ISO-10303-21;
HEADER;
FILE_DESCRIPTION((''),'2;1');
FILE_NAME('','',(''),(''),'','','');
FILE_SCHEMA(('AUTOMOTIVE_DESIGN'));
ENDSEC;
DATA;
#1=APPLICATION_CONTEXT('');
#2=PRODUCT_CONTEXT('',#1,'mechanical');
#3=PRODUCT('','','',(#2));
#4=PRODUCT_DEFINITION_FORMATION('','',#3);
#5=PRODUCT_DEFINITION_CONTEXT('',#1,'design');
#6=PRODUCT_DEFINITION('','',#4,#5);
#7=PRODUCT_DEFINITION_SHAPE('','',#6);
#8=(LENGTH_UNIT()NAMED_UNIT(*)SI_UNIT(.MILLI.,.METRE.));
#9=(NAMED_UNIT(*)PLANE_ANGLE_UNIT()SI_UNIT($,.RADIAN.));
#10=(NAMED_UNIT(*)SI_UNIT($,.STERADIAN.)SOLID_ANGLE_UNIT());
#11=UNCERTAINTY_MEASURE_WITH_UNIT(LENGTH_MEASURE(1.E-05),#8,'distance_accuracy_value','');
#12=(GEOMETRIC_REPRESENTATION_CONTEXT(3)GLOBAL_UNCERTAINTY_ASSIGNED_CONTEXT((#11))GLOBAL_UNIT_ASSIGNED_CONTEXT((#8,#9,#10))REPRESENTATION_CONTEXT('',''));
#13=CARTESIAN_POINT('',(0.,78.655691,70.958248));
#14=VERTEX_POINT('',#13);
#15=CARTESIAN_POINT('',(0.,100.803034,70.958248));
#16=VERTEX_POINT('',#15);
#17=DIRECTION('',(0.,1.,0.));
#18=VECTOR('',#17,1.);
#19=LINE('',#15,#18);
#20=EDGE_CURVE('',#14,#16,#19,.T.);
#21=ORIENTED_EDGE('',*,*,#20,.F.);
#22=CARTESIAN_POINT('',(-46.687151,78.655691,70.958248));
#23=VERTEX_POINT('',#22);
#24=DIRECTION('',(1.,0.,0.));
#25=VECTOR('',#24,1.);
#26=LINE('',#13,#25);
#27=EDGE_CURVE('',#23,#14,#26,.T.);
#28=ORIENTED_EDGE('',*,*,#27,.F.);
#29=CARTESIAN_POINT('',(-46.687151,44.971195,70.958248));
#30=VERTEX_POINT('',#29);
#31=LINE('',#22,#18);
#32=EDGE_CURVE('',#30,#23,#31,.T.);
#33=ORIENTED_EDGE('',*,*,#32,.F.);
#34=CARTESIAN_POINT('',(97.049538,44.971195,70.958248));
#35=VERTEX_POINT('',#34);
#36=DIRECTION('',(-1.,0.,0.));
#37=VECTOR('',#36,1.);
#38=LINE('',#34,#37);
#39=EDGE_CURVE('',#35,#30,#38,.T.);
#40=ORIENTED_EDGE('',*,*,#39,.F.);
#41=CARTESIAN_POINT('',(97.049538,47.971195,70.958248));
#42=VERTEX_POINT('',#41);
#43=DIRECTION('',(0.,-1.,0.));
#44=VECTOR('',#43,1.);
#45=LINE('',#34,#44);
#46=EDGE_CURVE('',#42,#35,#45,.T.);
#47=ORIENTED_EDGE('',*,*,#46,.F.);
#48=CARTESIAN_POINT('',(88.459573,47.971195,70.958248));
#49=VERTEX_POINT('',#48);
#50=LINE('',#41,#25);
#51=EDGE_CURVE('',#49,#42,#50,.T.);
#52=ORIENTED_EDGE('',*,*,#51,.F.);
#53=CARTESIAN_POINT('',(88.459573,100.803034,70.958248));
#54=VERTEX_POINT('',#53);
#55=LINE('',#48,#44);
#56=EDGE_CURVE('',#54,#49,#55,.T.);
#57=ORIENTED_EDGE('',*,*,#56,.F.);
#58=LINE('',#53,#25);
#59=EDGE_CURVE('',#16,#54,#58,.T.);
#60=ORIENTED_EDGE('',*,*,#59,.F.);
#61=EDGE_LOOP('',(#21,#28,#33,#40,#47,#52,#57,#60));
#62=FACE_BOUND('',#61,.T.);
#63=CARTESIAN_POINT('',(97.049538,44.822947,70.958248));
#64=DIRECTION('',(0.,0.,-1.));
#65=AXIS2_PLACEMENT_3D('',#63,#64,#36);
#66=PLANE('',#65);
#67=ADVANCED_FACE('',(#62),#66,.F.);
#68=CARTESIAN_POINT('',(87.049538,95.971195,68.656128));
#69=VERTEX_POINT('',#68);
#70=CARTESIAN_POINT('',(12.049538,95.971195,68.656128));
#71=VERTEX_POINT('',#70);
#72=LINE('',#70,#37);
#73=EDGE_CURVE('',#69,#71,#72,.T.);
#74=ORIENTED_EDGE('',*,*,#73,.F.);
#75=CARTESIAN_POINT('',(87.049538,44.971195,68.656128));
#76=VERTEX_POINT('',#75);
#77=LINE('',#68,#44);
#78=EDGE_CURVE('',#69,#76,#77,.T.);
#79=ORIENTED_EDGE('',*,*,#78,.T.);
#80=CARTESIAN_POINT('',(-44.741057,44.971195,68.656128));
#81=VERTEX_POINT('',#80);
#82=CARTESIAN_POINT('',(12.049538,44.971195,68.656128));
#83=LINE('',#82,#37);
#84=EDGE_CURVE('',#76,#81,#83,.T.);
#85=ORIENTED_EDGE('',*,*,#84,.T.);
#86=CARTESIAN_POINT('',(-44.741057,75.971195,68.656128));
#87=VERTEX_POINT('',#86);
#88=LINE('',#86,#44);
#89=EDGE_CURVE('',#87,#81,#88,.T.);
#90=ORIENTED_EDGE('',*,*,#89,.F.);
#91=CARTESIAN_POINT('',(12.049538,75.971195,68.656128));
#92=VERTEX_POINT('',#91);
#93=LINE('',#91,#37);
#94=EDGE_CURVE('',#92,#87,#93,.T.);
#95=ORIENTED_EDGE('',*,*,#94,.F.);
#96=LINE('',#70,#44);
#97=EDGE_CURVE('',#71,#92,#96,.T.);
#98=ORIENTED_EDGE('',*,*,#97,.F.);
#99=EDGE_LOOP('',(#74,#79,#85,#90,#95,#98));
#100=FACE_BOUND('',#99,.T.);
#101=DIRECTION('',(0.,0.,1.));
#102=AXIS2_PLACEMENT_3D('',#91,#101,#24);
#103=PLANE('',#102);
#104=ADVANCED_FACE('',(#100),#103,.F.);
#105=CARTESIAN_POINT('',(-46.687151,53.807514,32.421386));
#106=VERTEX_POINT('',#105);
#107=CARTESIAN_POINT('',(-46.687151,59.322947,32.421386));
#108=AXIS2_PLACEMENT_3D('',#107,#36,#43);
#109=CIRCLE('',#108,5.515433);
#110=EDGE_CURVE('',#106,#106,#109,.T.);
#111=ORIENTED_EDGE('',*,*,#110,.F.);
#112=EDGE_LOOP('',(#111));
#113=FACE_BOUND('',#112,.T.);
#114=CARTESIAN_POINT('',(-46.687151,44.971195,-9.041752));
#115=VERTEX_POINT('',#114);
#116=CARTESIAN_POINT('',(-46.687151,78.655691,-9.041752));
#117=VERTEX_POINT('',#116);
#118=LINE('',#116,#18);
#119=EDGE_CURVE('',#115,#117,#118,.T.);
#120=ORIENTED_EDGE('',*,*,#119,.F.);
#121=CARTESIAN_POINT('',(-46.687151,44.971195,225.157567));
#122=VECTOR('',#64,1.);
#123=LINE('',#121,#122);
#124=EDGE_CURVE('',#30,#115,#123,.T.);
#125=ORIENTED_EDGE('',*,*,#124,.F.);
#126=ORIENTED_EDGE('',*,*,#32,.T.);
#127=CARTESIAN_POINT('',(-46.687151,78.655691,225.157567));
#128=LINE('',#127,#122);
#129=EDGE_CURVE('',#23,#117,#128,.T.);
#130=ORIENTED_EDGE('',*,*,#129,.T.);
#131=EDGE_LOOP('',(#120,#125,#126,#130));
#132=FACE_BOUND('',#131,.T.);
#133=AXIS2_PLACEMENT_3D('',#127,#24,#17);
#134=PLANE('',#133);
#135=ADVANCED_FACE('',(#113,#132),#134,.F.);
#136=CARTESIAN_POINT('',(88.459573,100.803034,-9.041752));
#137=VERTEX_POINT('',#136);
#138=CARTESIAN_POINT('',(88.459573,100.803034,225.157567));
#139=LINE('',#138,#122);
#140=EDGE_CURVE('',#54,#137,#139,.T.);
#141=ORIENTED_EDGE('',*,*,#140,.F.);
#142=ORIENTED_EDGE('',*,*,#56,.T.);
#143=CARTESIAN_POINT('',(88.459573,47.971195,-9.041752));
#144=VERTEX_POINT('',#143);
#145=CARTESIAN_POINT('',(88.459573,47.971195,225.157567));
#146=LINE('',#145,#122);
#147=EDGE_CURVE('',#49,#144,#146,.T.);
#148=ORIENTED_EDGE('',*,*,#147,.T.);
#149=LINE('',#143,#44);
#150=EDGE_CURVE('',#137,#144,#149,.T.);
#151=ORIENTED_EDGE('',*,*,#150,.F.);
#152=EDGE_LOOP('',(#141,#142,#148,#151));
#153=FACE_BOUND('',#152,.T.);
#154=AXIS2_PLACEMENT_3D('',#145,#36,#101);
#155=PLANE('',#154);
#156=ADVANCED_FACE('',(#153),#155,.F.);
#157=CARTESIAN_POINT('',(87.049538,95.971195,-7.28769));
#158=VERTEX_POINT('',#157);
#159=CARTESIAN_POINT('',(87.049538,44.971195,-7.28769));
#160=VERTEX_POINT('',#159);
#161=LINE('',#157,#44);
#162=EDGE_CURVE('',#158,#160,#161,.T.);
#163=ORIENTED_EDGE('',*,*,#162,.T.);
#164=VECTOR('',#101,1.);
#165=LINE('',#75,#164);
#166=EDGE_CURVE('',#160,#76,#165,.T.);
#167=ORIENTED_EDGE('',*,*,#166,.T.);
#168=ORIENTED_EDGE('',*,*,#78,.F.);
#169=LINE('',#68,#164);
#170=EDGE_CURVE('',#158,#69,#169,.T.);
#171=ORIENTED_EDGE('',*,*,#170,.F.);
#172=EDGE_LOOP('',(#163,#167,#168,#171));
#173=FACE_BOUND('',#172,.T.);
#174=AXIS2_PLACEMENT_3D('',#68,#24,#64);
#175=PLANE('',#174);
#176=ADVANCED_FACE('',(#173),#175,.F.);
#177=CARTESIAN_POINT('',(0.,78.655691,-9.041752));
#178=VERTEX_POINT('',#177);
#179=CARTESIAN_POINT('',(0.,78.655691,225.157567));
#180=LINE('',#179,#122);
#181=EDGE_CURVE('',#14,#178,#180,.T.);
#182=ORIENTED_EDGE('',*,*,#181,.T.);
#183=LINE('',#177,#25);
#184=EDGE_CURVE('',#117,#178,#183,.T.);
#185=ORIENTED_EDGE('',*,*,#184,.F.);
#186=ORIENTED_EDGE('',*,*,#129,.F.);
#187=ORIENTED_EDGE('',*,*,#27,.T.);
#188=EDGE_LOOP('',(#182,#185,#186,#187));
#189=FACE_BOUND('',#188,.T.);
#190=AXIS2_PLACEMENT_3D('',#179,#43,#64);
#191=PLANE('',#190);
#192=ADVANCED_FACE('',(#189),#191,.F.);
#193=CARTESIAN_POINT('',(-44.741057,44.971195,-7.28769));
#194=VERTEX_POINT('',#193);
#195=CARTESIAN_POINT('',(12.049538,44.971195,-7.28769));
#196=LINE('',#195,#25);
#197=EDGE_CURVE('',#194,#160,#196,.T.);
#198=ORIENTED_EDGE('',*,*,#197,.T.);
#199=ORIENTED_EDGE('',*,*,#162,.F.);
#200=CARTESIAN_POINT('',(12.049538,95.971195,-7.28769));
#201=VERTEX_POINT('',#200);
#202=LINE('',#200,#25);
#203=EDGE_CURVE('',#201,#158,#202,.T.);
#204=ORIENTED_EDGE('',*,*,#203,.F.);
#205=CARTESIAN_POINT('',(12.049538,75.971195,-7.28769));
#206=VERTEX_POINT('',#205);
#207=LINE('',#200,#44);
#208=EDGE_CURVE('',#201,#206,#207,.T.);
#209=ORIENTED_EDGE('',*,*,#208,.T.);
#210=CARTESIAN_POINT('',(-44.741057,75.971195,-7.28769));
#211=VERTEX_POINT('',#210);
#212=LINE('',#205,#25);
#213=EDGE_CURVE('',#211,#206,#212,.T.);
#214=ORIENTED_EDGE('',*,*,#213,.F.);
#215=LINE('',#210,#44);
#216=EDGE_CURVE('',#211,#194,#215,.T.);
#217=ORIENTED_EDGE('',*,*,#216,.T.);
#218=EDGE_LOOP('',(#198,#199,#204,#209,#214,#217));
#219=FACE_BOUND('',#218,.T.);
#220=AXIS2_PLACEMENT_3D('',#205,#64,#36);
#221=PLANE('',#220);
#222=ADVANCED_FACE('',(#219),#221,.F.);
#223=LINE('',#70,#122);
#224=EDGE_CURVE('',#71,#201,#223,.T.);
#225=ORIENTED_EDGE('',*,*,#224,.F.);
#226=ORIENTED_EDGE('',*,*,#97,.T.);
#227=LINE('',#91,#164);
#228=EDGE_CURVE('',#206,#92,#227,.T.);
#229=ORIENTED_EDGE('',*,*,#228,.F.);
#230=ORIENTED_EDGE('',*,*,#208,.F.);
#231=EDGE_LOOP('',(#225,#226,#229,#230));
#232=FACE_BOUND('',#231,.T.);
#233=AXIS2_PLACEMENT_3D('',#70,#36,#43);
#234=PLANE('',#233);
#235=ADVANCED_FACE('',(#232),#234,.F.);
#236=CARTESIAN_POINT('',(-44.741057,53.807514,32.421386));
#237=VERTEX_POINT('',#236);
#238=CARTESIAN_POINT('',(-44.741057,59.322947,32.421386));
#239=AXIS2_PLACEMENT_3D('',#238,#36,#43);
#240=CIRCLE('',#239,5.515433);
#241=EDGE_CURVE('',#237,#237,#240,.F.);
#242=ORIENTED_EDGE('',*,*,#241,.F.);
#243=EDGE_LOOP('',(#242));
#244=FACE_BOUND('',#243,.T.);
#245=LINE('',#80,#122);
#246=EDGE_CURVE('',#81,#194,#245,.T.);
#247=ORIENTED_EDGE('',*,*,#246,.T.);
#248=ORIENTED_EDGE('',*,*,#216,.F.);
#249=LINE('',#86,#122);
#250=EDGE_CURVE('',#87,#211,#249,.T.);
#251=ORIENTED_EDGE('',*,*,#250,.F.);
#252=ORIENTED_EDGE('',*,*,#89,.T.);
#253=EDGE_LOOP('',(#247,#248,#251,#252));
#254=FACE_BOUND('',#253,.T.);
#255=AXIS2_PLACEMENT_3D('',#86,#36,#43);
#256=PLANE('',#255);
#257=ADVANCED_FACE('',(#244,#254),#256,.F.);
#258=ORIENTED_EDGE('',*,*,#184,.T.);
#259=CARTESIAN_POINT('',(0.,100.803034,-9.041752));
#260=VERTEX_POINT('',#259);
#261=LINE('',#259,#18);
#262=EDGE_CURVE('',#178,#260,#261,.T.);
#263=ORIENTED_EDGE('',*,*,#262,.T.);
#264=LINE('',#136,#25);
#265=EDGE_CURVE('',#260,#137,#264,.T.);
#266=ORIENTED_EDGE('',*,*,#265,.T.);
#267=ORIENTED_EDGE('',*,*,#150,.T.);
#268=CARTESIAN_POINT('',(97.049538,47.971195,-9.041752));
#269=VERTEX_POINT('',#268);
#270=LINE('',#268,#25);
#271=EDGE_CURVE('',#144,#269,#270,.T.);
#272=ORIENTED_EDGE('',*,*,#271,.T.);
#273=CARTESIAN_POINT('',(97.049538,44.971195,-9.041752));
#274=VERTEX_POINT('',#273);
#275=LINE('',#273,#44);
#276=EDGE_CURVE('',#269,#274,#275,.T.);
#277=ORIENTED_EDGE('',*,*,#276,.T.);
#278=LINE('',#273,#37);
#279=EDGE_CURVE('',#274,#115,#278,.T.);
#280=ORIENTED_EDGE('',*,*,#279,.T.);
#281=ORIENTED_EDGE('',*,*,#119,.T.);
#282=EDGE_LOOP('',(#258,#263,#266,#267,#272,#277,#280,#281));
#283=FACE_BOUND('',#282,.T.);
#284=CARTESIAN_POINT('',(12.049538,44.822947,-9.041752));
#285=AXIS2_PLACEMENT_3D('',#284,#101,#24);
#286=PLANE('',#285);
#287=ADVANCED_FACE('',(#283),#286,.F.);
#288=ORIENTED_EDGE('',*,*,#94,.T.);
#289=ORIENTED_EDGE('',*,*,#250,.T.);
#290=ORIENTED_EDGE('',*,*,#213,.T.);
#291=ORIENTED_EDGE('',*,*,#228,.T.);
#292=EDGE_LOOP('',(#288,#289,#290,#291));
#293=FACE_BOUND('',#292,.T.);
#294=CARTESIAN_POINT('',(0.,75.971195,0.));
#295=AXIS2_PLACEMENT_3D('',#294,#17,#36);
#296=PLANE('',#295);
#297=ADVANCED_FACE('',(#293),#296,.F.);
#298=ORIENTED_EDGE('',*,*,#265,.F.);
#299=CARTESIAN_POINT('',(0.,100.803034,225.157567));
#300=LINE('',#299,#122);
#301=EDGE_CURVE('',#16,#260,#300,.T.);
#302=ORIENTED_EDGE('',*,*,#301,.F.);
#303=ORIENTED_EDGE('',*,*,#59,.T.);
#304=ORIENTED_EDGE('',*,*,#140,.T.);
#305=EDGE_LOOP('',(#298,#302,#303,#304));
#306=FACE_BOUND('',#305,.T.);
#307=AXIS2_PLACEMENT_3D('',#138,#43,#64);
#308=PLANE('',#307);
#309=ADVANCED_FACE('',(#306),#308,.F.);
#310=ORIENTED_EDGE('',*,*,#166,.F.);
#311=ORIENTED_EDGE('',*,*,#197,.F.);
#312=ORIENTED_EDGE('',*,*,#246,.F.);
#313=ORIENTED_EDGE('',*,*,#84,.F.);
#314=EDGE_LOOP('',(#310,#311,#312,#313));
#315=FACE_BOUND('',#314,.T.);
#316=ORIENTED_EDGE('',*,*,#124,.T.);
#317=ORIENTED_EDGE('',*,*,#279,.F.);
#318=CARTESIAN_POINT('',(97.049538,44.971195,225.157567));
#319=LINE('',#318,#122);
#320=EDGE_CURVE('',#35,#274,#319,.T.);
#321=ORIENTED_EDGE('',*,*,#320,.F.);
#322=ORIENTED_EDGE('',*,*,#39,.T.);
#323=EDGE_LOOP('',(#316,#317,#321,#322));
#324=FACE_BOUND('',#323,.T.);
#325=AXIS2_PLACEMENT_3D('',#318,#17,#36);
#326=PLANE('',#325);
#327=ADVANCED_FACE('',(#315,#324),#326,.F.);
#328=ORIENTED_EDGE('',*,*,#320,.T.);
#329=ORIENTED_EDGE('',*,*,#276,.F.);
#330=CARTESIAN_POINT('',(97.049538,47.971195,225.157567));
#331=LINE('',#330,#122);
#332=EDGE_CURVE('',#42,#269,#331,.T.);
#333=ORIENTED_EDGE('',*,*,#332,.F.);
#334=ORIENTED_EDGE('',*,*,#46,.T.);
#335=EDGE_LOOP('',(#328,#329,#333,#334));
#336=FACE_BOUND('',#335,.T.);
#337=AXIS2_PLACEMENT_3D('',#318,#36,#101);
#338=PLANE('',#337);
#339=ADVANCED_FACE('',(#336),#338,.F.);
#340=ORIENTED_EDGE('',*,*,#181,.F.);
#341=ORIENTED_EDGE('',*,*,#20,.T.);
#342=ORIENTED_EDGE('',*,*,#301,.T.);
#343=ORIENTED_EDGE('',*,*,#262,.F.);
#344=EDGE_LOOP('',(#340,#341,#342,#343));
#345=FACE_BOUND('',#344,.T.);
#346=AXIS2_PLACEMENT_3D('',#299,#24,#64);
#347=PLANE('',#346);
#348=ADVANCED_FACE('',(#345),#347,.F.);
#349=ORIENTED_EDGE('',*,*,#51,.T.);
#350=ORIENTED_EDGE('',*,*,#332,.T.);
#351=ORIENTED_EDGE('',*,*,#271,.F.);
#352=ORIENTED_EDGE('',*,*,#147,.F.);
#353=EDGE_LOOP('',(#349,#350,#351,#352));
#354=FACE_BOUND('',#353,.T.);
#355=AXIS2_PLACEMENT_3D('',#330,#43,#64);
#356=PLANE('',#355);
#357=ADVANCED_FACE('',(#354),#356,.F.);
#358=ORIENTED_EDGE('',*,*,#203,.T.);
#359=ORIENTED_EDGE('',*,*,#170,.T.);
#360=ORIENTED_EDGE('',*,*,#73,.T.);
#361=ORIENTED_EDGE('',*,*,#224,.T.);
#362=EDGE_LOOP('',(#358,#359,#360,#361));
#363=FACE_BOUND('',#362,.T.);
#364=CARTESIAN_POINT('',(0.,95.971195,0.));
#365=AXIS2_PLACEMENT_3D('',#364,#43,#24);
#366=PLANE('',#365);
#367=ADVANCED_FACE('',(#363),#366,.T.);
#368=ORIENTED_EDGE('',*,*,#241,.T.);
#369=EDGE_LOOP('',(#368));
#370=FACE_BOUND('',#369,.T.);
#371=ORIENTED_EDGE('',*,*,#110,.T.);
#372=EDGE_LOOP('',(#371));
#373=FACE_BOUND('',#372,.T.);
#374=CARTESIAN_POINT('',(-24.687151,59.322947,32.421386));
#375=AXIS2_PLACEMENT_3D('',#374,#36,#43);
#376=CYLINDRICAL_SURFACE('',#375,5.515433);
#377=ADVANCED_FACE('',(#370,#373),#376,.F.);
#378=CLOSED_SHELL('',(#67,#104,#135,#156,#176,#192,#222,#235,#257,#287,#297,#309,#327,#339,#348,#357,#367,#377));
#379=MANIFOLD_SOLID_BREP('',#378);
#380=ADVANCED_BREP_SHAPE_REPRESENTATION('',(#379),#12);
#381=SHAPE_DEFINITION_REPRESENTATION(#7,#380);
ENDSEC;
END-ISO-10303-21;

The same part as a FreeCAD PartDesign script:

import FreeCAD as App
import Part
import Sketcher
Q = App.Units.Quantity

doc = App.newDocument("Part")
body = doc.addObject("PartDesign::Body", "Body")

# Sketch on XY plane
sketch1 = doc.addObject("Sketcher::SketchObject", "Sketch")
body.addObject(sketch1)
sketch1.AttachmentSupport = (doc.XY_Plane, [""])
sketch1.MapMode = "FlatFace"
sketch1.addGeometry([
    Part.LineSegment(App.Vector(97, 45, 0), App.Vector(97, 48, 0)),  # 0
    Part.LineSegment(App.Vector(97, 48, 0), App.Vector(88.5, 48, 0)),  # 1
    Part.LineSegment(App.Vector(88.5, 48, 0), App.Vector(88.5, 100.8, 0)),  # 2
    Part.LineSegment(App.Vector(88.5, 100.8, 0), App.Vector(0, 100.8, 0)),  # 3
    Part.LineSegment(App.Vector(0, 100.8, 0), App.Vector(0, 78.7, 0)),  # 4
    Part.LineSegment(App.Vector(0, 78.7, 0), App.Vector(-46.7, 78.7, 0)),  # 5
    Part.LineSegment(App.Vector(-46.7, 78.7, 0), App.Vector(-46.7, 45, 0)),  # 6
    Part.LineSegment(App.Vector(-46.7, 45, 0), App.Vector(97, 45, 0)),  # 7
], False)
sketch1.addConstraint([
    Sketcher.Constraint("Coincident", 0, 2, 1, 1),
    Sketcher.Constraint("Coincident", 1, 2, 2, 1),
    Sketcher.Constraint("Coincident", 2, 2, 3, 1),
    Sketcher.Constraint("Coincident", 3, 2, 4, 1),
    Sketcher.Constraint("Coincident", 4, 2, 5, 1),
    Sketcher.Constraint("Coincident", 5, 2, 6, 1),
    Sketcher.Constraint("Coincident", 6, 2, 7, 1),
    Sketcher.Constraint("Coincident", 7, 2, 0, 1),
    Sketcher.Constraint("Vertical", 0),
    Sketcher.Constraint("Horizontal", 1),
    Sketcher.Constraint("Vertical", 2),
    Sketcher.Constraint("Horizontal", 3),
    Sketcher.Constraint("Vertical", 4),
    Sketcher.Constraint("Horizontal", 5),
    Sketcher.Constraint("Vertical", 6),
    Sketcher.Constraint("Horizontal", 7),
    Sketcher.Constraint("PointOnObject", 3, 2, -2),
    Sketcher.Constraint("DistanceY", 0, 1, 0, 2, Q("3 mm")),
    Sketcher.Constraint("DistanceX", 5, 2, 5, 1, Q("46.687151 mm")),
    Sketcher.Constraint("DistanceX", 7, 1, 7, 2, Q("143.736688 mm")),
    Sketcher.Constraint("DistanceY", 2, 1, 2, 2, Q("52.83184 mm")),
    Sketcher.Constraint("DistanceX", 1, 2, 1, 1, Q("8.589965 mm")),
    Sketcher.Constraint("DistanceY", 4, 2, 4, 1, Q("22.147343 mm")),
    Sketcher.Constraint("DistanceY", -1, 1, 4, 2, Q("78.655691 mm")),
])
pad1 = doc.addObject("PartDesign::Pad", "Pad")
body.addObject(pad1)
pad1.Profile = sketch1
pad1.Type = "TwoLengths"
pad1.Length = 70.958248
pad1.Length2 = 9.041752

# Sketch on YZ plane
sketch2 = doc.addObject("Sketcher::SketchObject", "Sketch001")
body.addObject(sketch2)
sketch2.AttachmentSupport = (doc.YZ_Plane, [""])
sketch2.MapMode = "FlatFace"
sketch2.AttachmentOffset = App.Placement(App.Vector(0, 0, -46.687151), App.Rotation())
sketch2.addGeometry(Part.Circle(App.Vector(59, 32, 0), App.Vector(0, 0, 1), 6), False)
sketch2.addConstraint([
    Sketcher.Constraint("Diameter", 0, Q("11.030866 mm")),
    Sketcher.Constraint("DistanceX", -1, 1, 0, 3, Q("59.322947 mm")),
    Sketcher.Constraint("DistanceY", -1, 1, 0, 3, Q("32.421386 mm")),
])
pocket1 = doc.addObject("PartDesign::Pocket", "Pocket")
body.addObject(pocket1)
pocket1.Profile = sketch2
pocket1.Length = 22
pocket1.Reversed = True

# Sketch on XZ plane
sketch3 = doc.addObject("Sketcher::SketchObject", "Sketch002")
body.addObject(sketch3)
sketch3.AttachmentSupport = (doc.XZ_Plane, [""])
sketch3.MapMode = "FlatFace"
sketch3.AttachmentOffset = App.Placement(App.Vector(0, 0, -44.971195), App.Rotation())
sketch3.addGeometry([
    Part.LineSegment(App.Vector(12, -7, 0), App.Vector(12, 69, 0)),
    Part.LineSegment(App.Vector(12, 69, 0), App.Vector(-45, 69, 0)),
    Part.LineSegment(App.Vector(-45, 69, 0), App.Vector(-45, -7, 0)),
    Part.LineSegment(App.Vector(-45, -7, 0), App.Vector(12, -7, 0)),
], False)
sketch3.addConstraint([
    Sketcher.Constraint("Coincident", 0, 2, 1, 1),
    Sketcher.Constraint("Coincident", 1, 2, 2, 1),
    Sketcher.Constraint("Coincident", 2, 2, 3, 1),
    Sketcher.Constraint("Coincident", 3, 2, 0, 1),
    Sketcher.Constraint("Vertical", 0),
    Sketcher.Constraint("Horizontal", 1),
    Sketcher.Constraint("Vertical", 2),
    Sketcher.Constraint("Horizontal", 3),
    Sketcher.Constraint("DistanceY", 0, 1, 0, 2, Q("75.943818 mm")),
    Sketcher.Constraint("DistanceX", 1, 2, 1, 1, Q("56.790595 mm")),
    Sketcher.Constraint("DistanceY", -1, 1, 0, 2, Q("68.656128 mm")),
    Sketcher.Constraint("DistanceX", -1, 1, 0, 2, Q("12.049538 mm")),
])
pocket2 = doc.addObject("PartDesign::Pocket", "Pocket001")
body.addObject(pocket2)
pocket2.Profile = sketch3
pocket2.Length = 31

# Sketch on XZ plane
sketch4 = doc.addObject("Sketcher::SketchObject", "Sketch003")
body.addObject(sketch4)
sketch4.AttachmentSupport = (doc.XZ_Plane, [""])
sketch4.MapMode = "FlatFace"
sketch4.AttachmentOffset = App.Placement(App.Vector(0, 0, -44.971195), App.Rotation())
sketch4.addGeometry([
    Part.LineSegment(App.Vector(87, -7, 0), App.Vector(87, 69, 0)),
    Part.LineSegment(App.Vector(87, 69, 0), App.Vector(12, 69, 0)),
    Part.LineSegment(App.Vector(12, 69, 0), App.Vector(12, -7, 0)),
    Part.LineSegment(App.Vector(12, -7, 0), App.Vector(87, -7, 0)),
], False)
sketch4.addConstraint([
    Sketcher.Constraint("Coincident", 0, 2, 1, 1),
    Sketcher.Constraint("Coincident", 1, 2, 2, 1),
    Sketcher.Constraint("Coincident", 2, 2, 3, 1),
    Sketcher.Constraint("Coincident", 3, 2, 0, 1),
    Sketcher.Constraint("Vertical", 0),
    Sketcher.Constraint("Horizontal", 1),
    Sketcher.Constraint("Vertical", 2),
    Sketcher.Constraint("Horizontal", 3),
    Sketcher.Constraint("DistanceX", 1, 2, 1, 1, Q("75 mm")),
    Sketcher.Constraint("DistanceY", 0, 1, 0, 2, Q("75.943818 mm")),
    Sketcher.Constraint("DistanceY", -1, 1, 0, 2, Q("68.656128 mm")),
    Sketcher.Constraint("DistanceX", -1, 1, 0, 2, Q("87.049538 mm")),
])
pocket3 = doc.addObject("PartDesign::Pocket", "Pocket002")
body.addObject(pocket3)
pocket3.Profile = sketch4
pocket3.Length = 51

doc.recompute()
